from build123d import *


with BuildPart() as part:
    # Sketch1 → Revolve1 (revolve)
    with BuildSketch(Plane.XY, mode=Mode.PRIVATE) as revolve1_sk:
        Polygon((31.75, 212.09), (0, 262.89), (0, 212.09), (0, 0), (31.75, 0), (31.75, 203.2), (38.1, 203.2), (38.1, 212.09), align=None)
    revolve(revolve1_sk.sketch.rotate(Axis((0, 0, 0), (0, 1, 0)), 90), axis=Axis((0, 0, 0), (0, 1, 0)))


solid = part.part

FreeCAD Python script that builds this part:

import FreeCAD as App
import Part
import Sketcher
Q = App.Units.Quantity

doc = App.newDocument("Part")
params = doc.addObject("Spreadsheet::Sheet", "Params")
for row, (alias, value) in enumerate([
    ("sketch1_height", "8 in"),
    ("sketch1_width", "1.25 in"),
    ("sketch1_width2", "0.25 in"),
    ("sketch1_height2", "10.35 in"),
    ("revolution_angle", "360 deg"),
], start=1):
    params.set(f"A{row}", alias)
    params.set(f"B{row}", "=" + value)
    params.setAlias(f"B{row}", alias)

body = doc.addObject("PartDesign::Body", "Body")

# Sketch on XY plane
sketch1 = doc.addObject("Sketcher::SketchObject", "Sketch")
body.addObject(sketch1)
sketch1.AttachmentSupport = (doc.XY_Plane, [""])
sketch1.MapMode = "FlatFace"
sketch1.addGeometry([
    Part.LineSegment(App.Vector(32, 212, 0), App.Vector(0, 263, 0)),  # 0
    Part.LineSegment(App.Vector(0, 263, 0), App.Vector(0, 0, 0)),  # 1
    Part.LineSegment(App.Vector(0, 0, 0), App.Vector(32, 0, 0)),  # 2
    Part.LineSegment(App.Vector(32, 0, 0), App.Vector(32, 203, 0)),  # 3
    Part.LineSegment(App.Vector(32, 203, 0), App.Vector(38, 203, 0)),  # 4
    Part.LineSegment(App.Vector(38, 203, 0), App.Vector(38, 212, 0)),  # 5
    Part.LineSegment(App.Vector(38, 212, 0), App.Vector(32, 212, 0)),  # 6
], False)
sketch1.addConstraint([
    Sketcher.Constraint("Coincident", 0, 2, 1, 1),
    Sketcher.Constraint("Coincident", 1, 2, 2, 1),
    Sketcher.Constraint("Coincident", 2, 2, 3, 1),
    Sketcher.Constraint("Coincident", 3, 2, 4, 1),
    Sketcher.Constraint("Coincident", 4, 2, 5, 1),
    Sketcher.Constraint("Coincident", 5, 2, 6, 1),
    Sketcher.Constraint("Coincident", 6, 2, 0, 1),
    Sketcher.Constraint("Vertical", 1),
    Sketcher.Constraint("Horizontal", 2),
    Sketcher.Constraint("Vertical", 3),
    Sketcher.Constraint("Horizontal", 4),
    Sketcher.Constraint("Vertical", 5),
    Sketcher.Constraint("Horizontal", 6),
    Sketcher.Constraint("Coincident", 1, 2, -1, 1),
    Sketcher.Constraint("Vertical", 3, 2, 6, 2),
    Sketcher.Constraint("DistanceY", 3, 1, 3, 2, Q("8 in")),
    Sketcher.Constraint("DistanceY", 5, 2, 0, 2, Q("2 in")),
    Sketcher.Constraint("DistanceX", 2, 1, 2, 2, Q("1.25 in")),
    Sketcher.Constraint("DistanceX", 4, 1, 4, 2, Q("0.25 in")),
    Sketcher.Constraint("DistanceY", 1, 2, 1, 1, Q("10.35 in")),
])
sketch1.setExpression("Constraints[15]", "Params.sketch1_height")
sketch1.setExpression("Constraints[17]", "Params.sketch1_width")
sketch1.setExpression("Constraints[18]", "Params.sketch1_width2")
sketch1.setExpression("Constraints[19]", "Params.sketch1_height2")
revolution = doc.addObject("PartDesign::Revolution", "Revolution")
body.addObject(revolution)
revolution.Profile = sketch1
revolution.ReferenceAxis = (sketch1, ["V_Axis"])
revolution.setExpression("Angle", "Params.revolution_angle")

doc.recompute()
